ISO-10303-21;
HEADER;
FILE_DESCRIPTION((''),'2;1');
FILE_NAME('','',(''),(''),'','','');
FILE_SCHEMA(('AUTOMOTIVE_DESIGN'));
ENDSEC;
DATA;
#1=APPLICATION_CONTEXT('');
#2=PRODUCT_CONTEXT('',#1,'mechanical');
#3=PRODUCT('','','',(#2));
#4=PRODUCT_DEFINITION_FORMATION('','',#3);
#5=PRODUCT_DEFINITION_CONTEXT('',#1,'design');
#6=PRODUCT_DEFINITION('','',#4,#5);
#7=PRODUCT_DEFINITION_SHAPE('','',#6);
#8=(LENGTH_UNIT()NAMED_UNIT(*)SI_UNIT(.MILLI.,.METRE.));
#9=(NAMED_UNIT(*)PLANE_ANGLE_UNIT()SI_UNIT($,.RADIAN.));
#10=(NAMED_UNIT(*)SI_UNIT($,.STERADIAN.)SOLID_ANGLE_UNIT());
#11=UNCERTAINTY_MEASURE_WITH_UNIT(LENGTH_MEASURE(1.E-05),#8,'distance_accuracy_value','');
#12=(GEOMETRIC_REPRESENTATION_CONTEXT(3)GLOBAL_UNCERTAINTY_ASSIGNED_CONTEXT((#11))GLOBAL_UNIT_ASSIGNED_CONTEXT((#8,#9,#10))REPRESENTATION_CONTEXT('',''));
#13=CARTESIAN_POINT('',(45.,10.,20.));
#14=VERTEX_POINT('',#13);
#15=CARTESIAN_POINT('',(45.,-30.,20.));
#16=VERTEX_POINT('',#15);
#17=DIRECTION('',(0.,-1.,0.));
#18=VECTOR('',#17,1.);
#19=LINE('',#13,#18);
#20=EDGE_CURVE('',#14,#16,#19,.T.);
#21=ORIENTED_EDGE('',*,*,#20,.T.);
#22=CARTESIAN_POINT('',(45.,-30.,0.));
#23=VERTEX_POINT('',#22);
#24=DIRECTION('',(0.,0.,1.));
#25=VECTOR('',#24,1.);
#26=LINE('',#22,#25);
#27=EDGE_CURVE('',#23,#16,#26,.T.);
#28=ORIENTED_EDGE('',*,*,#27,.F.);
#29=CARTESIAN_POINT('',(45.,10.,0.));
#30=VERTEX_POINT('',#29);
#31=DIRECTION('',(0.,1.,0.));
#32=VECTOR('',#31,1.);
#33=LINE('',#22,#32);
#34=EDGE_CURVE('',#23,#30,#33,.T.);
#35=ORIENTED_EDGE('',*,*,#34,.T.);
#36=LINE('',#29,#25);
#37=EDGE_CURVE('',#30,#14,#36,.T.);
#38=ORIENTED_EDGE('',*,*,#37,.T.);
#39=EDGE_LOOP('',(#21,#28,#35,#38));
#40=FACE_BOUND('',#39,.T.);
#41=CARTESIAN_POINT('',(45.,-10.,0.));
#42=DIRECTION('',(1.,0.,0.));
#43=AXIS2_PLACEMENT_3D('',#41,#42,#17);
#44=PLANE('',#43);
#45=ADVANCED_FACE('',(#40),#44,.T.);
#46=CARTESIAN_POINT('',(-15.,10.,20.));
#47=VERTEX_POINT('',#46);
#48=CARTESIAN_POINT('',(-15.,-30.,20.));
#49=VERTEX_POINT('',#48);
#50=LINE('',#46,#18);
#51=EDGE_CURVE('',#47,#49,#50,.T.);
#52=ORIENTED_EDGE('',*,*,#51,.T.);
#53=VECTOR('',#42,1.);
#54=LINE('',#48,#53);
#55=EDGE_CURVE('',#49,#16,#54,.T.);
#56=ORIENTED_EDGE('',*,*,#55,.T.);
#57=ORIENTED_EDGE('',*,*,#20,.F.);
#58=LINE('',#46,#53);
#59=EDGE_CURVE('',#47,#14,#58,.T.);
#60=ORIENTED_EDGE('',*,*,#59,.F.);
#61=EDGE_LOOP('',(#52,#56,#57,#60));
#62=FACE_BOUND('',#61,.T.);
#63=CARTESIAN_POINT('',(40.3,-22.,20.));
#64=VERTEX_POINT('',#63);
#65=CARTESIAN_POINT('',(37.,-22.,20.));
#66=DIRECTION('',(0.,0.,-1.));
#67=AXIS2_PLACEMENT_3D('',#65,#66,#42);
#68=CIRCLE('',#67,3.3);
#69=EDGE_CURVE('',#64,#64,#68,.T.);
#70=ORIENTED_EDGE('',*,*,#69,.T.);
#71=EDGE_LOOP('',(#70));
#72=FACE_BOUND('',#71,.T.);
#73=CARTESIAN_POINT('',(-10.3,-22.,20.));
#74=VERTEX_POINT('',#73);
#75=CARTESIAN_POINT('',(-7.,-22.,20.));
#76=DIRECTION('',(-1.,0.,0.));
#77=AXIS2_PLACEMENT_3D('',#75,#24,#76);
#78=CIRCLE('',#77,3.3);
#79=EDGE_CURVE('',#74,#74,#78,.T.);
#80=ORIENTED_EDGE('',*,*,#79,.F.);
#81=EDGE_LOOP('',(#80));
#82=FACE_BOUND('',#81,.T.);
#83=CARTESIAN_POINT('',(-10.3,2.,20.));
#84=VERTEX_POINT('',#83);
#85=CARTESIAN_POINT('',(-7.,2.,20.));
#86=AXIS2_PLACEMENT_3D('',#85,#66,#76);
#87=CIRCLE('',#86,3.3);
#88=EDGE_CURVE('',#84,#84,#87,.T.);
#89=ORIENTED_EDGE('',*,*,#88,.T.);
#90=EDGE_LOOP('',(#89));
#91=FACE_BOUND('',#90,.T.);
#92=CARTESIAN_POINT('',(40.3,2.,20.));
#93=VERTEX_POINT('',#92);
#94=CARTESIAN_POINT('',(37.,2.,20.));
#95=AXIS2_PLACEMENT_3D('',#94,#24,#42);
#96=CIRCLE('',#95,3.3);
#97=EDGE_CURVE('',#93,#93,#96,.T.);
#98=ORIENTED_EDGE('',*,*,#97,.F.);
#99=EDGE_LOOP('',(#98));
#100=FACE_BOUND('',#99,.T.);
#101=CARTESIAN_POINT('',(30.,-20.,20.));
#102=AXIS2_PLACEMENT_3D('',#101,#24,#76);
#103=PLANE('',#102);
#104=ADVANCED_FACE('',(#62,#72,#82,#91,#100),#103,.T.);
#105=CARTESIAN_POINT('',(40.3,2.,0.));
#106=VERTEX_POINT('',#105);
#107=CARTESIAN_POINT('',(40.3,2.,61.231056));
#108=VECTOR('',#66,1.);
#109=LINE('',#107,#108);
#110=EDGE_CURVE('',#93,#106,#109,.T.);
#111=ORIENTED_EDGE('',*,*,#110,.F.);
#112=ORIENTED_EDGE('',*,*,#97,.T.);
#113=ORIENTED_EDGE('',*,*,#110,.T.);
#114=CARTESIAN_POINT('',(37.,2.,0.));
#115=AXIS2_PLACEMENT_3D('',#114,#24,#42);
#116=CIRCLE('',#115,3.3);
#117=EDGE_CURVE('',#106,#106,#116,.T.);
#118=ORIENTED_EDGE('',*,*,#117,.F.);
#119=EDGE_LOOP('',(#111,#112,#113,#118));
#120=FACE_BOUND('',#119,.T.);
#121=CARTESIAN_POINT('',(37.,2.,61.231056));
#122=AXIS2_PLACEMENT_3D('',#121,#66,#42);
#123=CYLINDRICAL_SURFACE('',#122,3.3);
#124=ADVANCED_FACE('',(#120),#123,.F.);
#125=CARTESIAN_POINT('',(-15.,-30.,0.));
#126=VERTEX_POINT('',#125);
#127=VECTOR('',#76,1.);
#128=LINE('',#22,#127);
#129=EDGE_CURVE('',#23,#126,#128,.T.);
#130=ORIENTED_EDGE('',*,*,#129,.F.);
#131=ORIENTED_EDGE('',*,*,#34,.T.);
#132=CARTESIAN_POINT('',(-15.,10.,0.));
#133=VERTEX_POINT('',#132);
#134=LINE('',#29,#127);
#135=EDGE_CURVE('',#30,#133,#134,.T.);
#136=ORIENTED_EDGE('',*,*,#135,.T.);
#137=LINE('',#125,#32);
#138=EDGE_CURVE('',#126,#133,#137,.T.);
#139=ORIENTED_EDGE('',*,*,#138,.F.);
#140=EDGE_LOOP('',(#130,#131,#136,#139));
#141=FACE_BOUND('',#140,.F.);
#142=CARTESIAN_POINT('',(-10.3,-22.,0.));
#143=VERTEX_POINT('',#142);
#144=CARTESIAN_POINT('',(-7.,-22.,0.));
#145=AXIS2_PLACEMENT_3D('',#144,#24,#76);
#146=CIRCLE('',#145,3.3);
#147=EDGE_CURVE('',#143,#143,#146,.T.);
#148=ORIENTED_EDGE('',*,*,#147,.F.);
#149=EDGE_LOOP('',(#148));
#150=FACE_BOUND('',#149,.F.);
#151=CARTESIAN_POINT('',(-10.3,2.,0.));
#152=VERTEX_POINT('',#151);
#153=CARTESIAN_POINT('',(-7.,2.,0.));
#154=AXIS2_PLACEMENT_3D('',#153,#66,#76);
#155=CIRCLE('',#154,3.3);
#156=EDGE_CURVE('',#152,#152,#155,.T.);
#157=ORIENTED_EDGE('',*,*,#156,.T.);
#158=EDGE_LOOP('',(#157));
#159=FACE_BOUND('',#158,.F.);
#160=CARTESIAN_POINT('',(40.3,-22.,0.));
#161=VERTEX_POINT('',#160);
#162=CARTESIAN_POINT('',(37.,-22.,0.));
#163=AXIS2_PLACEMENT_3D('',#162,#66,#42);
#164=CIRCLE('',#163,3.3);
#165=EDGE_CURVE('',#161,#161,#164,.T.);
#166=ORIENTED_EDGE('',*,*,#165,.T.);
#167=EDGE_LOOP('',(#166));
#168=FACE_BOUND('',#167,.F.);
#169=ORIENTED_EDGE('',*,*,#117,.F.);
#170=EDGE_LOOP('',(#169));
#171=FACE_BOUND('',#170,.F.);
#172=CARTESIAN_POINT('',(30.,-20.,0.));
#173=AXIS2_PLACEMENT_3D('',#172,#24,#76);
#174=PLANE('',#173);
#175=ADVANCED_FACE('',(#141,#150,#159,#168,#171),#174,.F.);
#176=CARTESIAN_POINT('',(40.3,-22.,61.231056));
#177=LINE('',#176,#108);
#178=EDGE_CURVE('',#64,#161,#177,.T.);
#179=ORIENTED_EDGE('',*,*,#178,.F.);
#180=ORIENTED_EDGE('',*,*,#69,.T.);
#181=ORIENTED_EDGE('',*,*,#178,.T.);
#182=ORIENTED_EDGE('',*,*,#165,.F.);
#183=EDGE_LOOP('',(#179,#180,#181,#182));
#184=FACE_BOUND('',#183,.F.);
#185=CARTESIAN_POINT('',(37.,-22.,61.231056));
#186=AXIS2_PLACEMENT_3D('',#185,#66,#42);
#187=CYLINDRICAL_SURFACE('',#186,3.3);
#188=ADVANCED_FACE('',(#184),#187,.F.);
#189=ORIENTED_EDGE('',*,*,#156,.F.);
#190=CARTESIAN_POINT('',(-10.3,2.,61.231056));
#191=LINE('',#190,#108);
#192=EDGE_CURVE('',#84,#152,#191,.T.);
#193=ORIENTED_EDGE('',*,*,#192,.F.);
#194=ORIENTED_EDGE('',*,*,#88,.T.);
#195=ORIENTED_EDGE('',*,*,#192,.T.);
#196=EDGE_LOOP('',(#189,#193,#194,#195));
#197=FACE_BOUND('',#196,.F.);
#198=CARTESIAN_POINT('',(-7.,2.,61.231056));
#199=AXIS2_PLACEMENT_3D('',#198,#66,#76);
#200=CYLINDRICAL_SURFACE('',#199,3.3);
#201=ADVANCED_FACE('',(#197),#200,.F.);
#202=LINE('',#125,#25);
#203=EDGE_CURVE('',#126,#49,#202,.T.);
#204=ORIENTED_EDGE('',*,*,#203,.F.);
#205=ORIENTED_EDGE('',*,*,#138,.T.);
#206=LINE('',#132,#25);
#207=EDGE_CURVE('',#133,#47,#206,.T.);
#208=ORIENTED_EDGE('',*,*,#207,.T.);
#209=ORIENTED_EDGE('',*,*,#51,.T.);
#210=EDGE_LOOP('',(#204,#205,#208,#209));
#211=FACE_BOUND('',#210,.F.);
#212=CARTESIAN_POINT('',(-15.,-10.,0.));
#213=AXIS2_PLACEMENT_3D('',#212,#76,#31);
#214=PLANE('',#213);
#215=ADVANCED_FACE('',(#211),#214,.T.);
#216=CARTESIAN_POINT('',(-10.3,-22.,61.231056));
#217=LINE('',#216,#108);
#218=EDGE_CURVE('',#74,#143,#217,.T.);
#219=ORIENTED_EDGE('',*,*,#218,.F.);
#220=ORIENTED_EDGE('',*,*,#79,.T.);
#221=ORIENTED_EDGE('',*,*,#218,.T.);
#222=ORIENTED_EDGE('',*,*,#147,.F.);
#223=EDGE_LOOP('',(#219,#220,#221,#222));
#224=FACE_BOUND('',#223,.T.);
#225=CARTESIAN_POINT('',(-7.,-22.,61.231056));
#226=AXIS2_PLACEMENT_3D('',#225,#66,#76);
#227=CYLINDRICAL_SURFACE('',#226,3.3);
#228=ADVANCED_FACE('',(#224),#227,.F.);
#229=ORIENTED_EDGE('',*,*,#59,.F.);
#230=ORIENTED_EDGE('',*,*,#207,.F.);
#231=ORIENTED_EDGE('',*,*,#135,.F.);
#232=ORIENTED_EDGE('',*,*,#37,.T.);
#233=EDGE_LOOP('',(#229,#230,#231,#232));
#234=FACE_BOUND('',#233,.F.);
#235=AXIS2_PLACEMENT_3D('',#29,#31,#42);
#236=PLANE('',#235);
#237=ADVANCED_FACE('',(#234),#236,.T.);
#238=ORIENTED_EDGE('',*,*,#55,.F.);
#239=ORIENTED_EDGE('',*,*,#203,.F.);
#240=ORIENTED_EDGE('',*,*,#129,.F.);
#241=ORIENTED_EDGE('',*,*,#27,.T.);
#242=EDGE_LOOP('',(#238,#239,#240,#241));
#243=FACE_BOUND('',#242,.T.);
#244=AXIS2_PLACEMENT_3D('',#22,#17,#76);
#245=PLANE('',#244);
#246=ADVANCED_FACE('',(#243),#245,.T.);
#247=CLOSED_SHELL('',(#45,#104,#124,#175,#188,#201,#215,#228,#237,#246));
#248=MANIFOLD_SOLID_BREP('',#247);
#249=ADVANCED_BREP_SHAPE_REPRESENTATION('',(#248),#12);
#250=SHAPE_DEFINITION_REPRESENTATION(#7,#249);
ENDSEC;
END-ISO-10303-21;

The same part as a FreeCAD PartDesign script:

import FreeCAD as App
import Part
import Sketcher

V = App.Vector


def add_polygon(sketch, points):
    """Adds a closed chain of lines whose ends are joined by coincident constraints."""
    first, n = sketch.GeometryCount, len(points)
    for a, b in zip(points, points[1:] + points[:1]):
        sketch.addGeometry(Part.LineSegment(App.Vector(*a, 0), App.Vector(*b, 0)), False)
    for i in range(n):
        sketch.addConstraint(Sketcher.Constraint("Coincident", first + i, 2, first + (i + 1) % n, 1))

doc = App.newDocument("Part")
body = doc.addObject("PartDesign::Body", "Body")

sketch1 = doc.addObject("Sketcher::SketchObject", "Sketch")
body.addObject(sketch1)
sketch1.AttachmentSupport = (doc.XY_Plane, [""])
sketch1.MapMode = "FlatFace"
add_polygon(sketch1, [(-15, 10), (-15, -10), (15, -10), (15, 10)])
sketch1.addConstraint([
    Sketcher.Constraint("Vertical", 0),
    Sketcher.Constraint("Horizontal", 1),
    Sketcher.Constraint("Vertical", 2),
    Sketcher.Constraint("Horizontal", 3),
    Sketcher.Constraint("Symmetric", 0, 2, 2, 2, -1, 1),
    Sketcher.Constraint("DistanceX", 1, 1, 1, 2, 30.0),
    Sketcher.Constraint("DistanceY", 0, 2, 0, 1, 20.0),
])
pad1 = doc.addObject("PartDesign::Pad", "Pad")
body.addObject(pad1)
pad1.Profile = sketch1
pad1.Length = 20

sketch2 = doc.addObject("Sketcher::SketchObject", "Sketch001")
body.addObject(sketch2)
sketch2.AttachmentSupport = (doc.XY_Plane, [""])
sketch2.MapMode = "FlatFace"
sketch2.AttachmentOffset = App.Placement(V(0, 0, 20), App.Rotation())
sketch2.addGeometry(Part.Circle(V(-7, 2, 0), V(0, 0, 1), 3.3), False)
sketch2.addConstraint([
    Sketcher.Constraint("Diameter", 0, 6.6),
    Sketcher.Constraint("DistanceX", 0, 3, -1, 1, 7.0),
    Sketcher.Constraint("DistanceY", -1, 1, 0, 3, 2.0),
])
doc.recompute()
hole = doc.addObject("PartDesign::Hole", "Hole")
body.addObject(hole)
hole.Profile = sketch2
hole.ThreadType = "None"
hole.Diameter = 6.6
hole.DepthType = "ThroughAll"
body2 = doc.addObject("PartDesign::Body", "Body001")
doc.recompute()

body2.BaseFeature = body
doc.recompute()

mirroring = doc.addObject("Part::Mirroring", "Mirroring")
mirroring.Source = body
mirroring.Base = V(15, 0, 10)
mirroring.Normal = V(1, 0, 0)
body3 = doc.addObject("PartDesign::Body", "Body002")
body3.BaseFeature = mirroring
boolean = doc.addObject("PartDesign::Boolean", "Boolean")
body2.addObject(boolean)
boolean.Type = "Fuse"
boolean.addObjects([body3])
doc.recompute()
body4 = doc.addObject("PartDesign::Body", "Body003")
doc.recompute()

body4.BaseFeature = body2
doc.recompute()

mirroring2 = doc.addObject("Part::Mirroring", "Mirroring001")
mirroring2.Source = body2
mirroring2.Base = V(15, -10, 10)
mirroring2.Normal = V(0, -1, 0)
body5 = doc.addObject("PartDesign::Body", "Body004")
body5.BaseFeature = mirroring2
boolean2 = doc.addObject("PartDesign::Boolean", "Boolean001")
body4.addObject(boolean2)
boolean2.Type = "Fuse"
boolean2.addObjects([body5])
doc.recompute()
mirroring.Visibility = False
mirroring2.Visibility = False

doc.recompute()
